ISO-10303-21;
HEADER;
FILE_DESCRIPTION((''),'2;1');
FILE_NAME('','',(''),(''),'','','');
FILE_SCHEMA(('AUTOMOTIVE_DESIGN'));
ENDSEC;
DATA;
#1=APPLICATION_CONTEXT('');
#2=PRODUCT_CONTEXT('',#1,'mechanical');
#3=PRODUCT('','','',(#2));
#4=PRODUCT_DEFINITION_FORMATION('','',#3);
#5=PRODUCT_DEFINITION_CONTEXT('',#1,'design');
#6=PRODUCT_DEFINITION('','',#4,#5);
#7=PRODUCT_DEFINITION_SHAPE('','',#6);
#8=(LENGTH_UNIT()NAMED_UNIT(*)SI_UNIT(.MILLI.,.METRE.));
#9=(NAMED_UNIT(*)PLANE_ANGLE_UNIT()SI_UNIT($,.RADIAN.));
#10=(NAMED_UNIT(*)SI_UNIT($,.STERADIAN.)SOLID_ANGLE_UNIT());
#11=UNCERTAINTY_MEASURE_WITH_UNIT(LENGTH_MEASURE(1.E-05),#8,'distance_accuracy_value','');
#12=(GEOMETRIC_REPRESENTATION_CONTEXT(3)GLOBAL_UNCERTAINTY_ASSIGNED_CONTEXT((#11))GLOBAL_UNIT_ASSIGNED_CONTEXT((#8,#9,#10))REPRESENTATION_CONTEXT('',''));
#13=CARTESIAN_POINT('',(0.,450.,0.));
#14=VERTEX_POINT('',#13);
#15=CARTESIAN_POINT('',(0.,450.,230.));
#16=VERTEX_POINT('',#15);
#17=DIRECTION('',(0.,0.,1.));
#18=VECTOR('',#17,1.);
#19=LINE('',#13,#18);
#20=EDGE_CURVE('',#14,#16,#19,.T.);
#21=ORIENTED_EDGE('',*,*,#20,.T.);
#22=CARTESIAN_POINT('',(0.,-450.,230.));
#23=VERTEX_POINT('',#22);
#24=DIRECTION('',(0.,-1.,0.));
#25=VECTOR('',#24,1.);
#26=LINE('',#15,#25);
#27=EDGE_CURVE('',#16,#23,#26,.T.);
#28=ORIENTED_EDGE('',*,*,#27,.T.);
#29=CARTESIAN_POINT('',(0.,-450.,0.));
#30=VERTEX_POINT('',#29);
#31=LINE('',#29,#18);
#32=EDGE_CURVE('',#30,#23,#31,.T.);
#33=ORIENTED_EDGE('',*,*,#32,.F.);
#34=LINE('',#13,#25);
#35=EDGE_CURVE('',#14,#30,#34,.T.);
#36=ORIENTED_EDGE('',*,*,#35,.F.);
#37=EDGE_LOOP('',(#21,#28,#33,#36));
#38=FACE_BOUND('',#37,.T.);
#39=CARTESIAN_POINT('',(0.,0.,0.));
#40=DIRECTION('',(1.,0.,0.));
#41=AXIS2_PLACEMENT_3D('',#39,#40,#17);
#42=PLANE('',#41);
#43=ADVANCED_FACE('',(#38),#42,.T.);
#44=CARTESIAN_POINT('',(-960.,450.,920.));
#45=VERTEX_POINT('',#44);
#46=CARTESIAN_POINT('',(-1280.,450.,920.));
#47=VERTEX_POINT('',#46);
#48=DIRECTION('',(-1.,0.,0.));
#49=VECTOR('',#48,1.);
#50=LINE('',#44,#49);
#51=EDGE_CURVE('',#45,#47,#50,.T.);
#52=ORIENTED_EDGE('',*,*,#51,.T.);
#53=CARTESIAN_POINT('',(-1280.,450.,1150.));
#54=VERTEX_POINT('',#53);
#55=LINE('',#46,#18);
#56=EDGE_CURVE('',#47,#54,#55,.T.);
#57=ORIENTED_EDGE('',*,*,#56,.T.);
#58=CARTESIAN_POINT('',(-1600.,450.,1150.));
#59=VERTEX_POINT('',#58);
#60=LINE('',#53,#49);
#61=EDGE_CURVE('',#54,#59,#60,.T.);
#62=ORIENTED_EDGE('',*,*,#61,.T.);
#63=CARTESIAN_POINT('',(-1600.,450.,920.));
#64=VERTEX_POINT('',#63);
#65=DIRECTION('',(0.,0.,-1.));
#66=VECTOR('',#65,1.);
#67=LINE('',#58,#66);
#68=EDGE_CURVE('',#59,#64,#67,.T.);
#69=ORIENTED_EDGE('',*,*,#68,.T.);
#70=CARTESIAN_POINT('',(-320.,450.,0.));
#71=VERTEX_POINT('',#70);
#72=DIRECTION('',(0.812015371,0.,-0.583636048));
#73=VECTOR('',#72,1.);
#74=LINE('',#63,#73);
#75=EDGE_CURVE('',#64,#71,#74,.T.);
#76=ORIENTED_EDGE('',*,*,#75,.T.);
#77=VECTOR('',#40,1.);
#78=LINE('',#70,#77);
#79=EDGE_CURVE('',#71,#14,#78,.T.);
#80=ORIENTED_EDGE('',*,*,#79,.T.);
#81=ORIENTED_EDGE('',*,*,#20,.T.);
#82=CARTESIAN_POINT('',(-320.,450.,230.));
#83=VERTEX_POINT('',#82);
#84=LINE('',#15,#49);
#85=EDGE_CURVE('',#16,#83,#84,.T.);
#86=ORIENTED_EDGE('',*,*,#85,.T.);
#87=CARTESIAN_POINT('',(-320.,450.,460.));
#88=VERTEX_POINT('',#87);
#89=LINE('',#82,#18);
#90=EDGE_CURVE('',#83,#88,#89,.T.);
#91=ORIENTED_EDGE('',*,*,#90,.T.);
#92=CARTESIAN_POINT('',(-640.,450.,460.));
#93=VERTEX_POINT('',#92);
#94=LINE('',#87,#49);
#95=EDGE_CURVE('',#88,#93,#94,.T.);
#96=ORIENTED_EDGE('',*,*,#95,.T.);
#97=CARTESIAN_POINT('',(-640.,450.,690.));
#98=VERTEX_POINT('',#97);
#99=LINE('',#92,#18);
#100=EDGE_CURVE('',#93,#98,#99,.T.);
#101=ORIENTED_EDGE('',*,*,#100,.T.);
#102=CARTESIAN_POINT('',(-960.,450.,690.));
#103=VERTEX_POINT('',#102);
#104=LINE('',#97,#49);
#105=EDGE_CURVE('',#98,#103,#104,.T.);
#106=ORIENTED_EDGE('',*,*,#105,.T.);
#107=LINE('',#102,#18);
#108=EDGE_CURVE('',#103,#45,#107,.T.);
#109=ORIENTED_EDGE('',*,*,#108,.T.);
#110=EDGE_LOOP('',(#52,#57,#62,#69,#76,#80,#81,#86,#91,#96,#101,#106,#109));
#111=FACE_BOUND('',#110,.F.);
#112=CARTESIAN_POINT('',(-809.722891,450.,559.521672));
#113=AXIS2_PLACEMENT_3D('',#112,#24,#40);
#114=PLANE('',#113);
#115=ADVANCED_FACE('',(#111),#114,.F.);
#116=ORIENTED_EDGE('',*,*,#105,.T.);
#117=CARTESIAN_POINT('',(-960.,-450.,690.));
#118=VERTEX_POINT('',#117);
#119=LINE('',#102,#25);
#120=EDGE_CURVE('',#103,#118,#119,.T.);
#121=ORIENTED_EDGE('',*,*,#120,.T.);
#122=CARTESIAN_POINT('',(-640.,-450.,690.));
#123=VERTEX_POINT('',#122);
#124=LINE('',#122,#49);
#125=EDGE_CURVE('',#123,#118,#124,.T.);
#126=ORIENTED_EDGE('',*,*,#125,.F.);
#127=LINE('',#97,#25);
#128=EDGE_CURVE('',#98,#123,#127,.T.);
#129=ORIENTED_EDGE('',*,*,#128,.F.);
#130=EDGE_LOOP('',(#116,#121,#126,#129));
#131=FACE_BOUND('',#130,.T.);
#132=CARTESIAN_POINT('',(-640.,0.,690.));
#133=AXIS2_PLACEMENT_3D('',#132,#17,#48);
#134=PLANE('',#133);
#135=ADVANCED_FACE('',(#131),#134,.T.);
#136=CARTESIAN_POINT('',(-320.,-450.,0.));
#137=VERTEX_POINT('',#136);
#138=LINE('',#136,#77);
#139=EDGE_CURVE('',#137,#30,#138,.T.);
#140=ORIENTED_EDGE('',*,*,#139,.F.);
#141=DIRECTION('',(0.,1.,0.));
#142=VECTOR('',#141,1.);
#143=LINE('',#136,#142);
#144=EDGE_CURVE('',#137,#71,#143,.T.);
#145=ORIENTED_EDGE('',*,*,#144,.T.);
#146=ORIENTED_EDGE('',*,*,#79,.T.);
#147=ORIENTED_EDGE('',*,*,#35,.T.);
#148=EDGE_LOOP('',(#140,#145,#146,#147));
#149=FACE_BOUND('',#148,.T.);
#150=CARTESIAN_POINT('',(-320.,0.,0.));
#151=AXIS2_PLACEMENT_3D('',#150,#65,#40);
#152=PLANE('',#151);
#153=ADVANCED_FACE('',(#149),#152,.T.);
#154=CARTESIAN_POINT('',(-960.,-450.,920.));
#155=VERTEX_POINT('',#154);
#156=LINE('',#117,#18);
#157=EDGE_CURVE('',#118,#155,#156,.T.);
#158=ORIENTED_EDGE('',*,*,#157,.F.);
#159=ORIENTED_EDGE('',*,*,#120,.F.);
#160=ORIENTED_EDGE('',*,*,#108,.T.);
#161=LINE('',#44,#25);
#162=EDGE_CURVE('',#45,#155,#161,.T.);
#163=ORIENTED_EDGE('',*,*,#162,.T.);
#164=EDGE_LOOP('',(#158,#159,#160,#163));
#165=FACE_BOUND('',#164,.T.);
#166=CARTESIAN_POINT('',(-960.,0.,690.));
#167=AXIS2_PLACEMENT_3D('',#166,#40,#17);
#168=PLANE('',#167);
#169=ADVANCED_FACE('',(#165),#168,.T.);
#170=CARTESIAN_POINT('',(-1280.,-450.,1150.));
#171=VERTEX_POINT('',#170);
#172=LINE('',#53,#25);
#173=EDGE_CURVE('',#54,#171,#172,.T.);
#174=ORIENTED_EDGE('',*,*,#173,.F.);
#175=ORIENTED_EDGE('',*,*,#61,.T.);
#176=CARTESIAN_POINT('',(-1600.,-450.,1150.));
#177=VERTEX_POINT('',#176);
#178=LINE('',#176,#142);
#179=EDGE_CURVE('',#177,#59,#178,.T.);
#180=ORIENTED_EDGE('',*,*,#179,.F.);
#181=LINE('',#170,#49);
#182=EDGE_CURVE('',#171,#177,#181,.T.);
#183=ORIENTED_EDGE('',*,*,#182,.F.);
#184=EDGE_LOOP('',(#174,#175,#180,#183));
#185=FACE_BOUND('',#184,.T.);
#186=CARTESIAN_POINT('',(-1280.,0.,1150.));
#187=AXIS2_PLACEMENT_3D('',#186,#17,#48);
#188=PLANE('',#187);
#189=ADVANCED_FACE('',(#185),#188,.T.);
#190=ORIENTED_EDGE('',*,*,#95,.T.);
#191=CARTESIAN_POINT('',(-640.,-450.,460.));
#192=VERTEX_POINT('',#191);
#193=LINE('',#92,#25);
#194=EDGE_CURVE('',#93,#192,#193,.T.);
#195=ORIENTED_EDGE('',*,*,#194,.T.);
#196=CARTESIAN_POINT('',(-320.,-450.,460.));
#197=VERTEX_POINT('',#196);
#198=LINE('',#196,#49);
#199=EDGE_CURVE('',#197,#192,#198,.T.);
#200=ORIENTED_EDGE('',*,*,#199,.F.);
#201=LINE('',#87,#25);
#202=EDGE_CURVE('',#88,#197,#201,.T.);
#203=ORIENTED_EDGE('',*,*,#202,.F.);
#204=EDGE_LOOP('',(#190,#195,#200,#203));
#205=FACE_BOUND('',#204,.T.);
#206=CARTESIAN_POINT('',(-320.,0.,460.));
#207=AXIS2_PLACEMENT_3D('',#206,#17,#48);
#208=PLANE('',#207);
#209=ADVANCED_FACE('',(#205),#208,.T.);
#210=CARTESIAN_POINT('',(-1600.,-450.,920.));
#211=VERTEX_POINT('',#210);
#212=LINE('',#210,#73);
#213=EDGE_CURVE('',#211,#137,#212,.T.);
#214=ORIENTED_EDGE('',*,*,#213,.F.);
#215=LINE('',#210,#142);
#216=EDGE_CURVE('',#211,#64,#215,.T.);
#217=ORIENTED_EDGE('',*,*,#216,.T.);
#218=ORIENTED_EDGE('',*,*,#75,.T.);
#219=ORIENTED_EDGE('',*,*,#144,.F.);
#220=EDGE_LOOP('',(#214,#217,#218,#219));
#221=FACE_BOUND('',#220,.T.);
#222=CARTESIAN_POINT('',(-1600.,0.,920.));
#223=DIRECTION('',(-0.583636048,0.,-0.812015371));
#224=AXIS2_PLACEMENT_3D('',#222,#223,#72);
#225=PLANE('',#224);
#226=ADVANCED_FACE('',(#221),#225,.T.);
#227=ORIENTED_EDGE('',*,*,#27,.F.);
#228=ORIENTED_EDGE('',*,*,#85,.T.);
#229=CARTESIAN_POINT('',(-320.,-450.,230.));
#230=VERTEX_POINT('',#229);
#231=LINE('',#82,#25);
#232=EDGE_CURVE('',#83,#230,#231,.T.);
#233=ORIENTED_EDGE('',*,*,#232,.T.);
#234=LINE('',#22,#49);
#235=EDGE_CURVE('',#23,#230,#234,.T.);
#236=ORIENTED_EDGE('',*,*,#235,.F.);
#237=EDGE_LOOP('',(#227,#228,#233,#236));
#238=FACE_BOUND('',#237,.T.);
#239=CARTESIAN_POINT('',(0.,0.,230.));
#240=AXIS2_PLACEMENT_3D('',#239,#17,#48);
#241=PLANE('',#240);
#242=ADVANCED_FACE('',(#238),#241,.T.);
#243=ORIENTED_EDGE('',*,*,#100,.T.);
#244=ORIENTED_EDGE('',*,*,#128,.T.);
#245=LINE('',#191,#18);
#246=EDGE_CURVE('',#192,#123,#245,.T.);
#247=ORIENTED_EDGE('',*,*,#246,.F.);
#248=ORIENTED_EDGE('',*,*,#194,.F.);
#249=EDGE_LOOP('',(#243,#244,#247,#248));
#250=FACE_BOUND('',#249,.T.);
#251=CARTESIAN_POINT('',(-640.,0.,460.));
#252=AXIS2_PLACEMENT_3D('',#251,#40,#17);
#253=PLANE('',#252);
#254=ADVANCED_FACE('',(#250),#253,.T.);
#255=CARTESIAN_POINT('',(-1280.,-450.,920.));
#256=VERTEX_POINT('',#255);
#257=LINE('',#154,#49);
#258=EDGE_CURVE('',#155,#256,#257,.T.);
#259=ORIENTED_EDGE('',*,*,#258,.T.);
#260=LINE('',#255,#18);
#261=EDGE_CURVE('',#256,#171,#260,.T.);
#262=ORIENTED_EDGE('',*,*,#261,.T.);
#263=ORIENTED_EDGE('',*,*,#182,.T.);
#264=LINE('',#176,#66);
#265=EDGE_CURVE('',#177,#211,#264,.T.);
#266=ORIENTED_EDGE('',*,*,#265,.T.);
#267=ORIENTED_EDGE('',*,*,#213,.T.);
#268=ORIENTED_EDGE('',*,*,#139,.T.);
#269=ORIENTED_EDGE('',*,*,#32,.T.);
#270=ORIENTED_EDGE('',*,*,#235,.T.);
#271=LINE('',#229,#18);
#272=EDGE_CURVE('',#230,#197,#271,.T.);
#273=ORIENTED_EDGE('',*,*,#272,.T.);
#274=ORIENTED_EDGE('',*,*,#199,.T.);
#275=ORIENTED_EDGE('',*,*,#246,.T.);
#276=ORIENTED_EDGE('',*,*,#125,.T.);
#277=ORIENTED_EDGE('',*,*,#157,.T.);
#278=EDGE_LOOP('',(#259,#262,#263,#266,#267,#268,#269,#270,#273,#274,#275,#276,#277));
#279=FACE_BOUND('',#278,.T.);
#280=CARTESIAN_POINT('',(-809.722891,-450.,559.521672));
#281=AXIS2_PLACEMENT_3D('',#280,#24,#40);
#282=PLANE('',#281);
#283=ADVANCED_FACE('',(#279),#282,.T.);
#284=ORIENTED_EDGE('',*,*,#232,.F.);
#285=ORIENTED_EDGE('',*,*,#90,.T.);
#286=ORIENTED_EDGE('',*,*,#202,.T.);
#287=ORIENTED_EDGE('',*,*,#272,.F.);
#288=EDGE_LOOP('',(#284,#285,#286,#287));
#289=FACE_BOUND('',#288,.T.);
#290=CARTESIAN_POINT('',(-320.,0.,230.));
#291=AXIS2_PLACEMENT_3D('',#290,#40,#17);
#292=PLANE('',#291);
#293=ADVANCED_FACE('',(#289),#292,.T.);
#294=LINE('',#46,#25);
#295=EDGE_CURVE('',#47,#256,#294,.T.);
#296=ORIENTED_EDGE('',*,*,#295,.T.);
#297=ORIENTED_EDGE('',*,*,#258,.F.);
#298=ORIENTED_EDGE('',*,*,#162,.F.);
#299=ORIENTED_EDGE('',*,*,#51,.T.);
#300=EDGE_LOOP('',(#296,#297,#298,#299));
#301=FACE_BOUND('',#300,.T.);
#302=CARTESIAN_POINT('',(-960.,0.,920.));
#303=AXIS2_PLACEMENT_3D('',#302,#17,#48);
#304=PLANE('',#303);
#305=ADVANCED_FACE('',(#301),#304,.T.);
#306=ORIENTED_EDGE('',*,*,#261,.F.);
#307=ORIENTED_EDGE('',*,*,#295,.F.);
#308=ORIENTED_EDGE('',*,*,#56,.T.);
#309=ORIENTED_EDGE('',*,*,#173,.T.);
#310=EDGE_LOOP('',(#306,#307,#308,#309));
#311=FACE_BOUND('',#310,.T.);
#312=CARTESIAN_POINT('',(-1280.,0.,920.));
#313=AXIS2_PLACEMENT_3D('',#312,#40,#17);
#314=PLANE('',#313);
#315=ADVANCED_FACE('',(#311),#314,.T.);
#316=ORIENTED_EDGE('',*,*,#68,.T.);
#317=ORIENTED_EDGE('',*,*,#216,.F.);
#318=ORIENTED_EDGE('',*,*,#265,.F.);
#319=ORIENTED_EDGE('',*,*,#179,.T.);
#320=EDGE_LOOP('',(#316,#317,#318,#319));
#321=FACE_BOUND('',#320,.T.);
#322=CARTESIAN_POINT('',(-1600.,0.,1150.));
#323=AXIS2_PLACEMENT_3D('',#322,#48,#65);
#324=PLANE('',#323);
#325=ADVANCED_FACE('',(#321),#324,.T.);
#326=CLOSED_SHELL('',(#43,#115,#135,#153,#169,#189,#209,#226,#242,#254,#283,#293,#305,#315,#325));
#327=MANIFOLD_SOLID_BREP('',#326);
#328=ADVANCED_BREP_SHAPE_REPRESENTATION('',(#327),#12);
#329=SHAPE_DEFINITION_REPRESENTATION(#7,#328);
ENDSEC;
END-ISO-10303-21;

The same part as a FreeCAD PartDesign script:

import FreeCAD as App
import Part
import Sketcher
from FreeCAD import Vector
Q = App.Units.Quantity


def add_polygon(sketch, points):
    """Adds a closed chain of lines whose ends are joined by coincident constraints."""
    first, n = sketch.GeometryCount, len(points)
    for a, b in zip(points, points[1:] + points[:1]):
        sketch.addGeometry(Part.LineSegment(App.Vector(*a, 0), App.Vector(*b, 0)), False)
    for i in range(n):
        sketch.addConstraint(Sketcher.Constraint("Coincident", first + i, 2, first + (i + 1) % n, 1))

doc = App.newDocument("Part")
body = doc.addObject("PartDesign::Body", "Body")

# Sketch on XZ plane
sketch1 = body.newObject("Sketcher::SketchObject", "Sketch")
sketch1.AttachmentSupport = (doc.getObject("XZ_Plane"), [""])
sketch1.MapMode = "FlatFace"
add_polygon(sketch1, [(-320, 0), (0, 0), (0, 230), (-320, 230), (-320, 460), (-640, 460), (-640, 690), (-960, 690), (-960, 920), (-1280, 920), (-1280, 1150), (-1600, 1150), (-1600, 920)])  # lines 0-12
sketch1.addConstraint(Sketcher.Constraint("Horizontal", 0))
sketch1.addConstraint(Sketcher.Constraint("Vertical", 1))
sketch1.addConstraint(Sketcher.Constraint("Horizontal", 2))
sketch1.addConstraint(Sketcher.Constraint("Vertical", 3))
sketch1.addConstraint(Sketcher.Constraint("Horizontal", 4))
sketch1.addConstraint(Sketcher.Constraint("Vertical", 5))
sketch1.addConstraint(Sketcher.Constraint("Horizontal", 6))
sketch1.addConstraint(Sketcher.Constraint("Vertical", 7))
sketch1.addConstraint(Sketcher.Constraint("Horizontal", 8))
sketch1.addConstraint(Sketcher.Constraint("Vertical", 9))
sketch1.addConstraint(Sketcher.Constraint("Horizontal", 10))
sketch1.addConstraint(Sketcher.Constraint("Vertical", 11))
sketch1.addConstraint(Sketcher.Constraint("Coincident", 0, 2, -1, 1))
sketch1.addConstraint(Sketcher.Constraint("Horizontal", 8, 2, 11, 2))
sketch1.addConstraint(Sketcher.Constraint("Vertical", 3, 2, 12, 2))
sketch1.addConstraint(Sketcher.Constraint("Equal", 2, 4))
sketch1.addConstraint(Sketcher.Constraint("Equal", 4, 6))
sketch1.addConstraint(Sketcher.Constraint("Equal", 6, 8))
sketch1.addConstraint(Sketcher.Constraint("Equal", 8, 10))
sketch1.addConstraint(Sketcher.Constraint("Equal", 1, 3))
sketch1.addConstraint(Sketcher.Constraint("Equal", 3, 5))
sketch1.addConstraint(Sketcher.Constraint("Equal", 5, 7))
sketch1.addConstraint(Sketcher.Constraint("Equal", 7, 9))
sketch1.addConstraint(Sketcher.Constraint("DistanceX", 0, 1, 0, 2, Q("320 mm")))
sketch1.addConstraint(Sketcher.Constraint("DistanceY", 1, 1, 1, 2, Q("230 mm")))
pad1 = body.newObject("PartDesign::Pad", "Pad")
pad1.Profile = sketch1
pad1.Length = 900
pad1.Midplane = True

doc.recompute()
